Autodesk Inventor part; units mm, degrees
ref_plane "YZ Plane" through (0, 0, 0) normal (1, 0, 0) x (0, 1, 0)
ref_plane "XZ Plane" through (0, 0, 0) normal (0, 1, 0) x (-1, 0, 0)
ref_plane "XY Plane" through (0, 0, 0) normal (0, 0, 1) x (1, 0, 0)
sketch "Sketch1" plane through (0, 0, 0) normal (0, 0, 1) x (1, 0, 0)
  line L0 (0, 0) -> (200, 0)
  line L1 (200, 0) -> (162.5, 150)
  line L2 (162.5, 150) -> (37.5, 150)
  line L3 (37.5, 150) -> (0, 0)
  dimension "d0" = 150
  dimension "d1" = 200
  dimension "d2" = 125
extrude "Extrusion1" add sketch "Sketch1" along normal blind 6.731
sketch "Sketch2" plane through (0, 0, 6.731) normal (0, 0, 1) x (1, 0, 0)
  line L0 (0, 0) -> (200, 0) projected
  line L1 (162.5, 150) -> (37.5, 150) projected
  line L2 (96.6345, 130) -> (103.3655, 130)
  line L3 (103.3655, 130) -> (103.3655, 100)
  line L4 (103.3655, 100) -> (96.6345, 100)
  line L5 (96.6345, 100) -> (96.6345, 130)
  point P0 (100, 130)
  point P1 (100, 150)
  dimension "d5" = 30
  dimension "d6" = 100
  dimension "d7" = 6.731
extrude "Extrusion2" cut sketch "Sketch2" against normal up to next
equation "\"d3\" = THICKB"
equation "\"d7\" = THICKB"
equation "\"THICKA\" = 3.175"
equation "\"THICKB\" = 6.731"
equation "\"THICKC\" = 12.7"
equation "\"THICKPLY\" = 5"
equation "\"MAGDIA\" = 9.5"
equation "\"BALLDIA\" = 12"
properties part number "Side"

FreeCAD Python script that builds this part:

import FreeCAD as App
import Part
import Sketcher

V = App.Vector


def add_polygon(sketch, points):
    """Adds a closed chain of lines whose ends are joined by coincident constraints."""
    first, n = sketch.GeometryCount, len(points)
    for a, b in zip(points, points[1:] + points[:1]):
        sketch.addGeometry(Part.LineSegment(App.Vector(*a, 0), App.Vector(*b, 0)), False)
    for i in range(n):
        sketch.addConstraint(Sketcher.Constraint("Coincident", first + i, 2, first + (i + 1) % n, 1))

doc = App.newDocument("Part")
body = doc.addObject("PartDesign::Body", "Body")

sketch1 = body.newObject("Sketcher::SketchObject", "Sketch")
sketch1.AttachmentSupport = (doc.getObject("XY_Plane"), [""])
sketch1.MapMode = "FlatFace"
add_polygon(sketch1, [(37.5, 150), (0, 0), (200, 0), (162.5, 150)])
sketch1.addConstraint([
    Sketcher.Constraint("Horizontal", 1),
    Sketcher.Constraint("Horizontal", 3),
    Sketcher.Constraint("Coincident", 0, 2, -1, 1),
    Sketcher.Constraint("Equal", 0, 2),
    Sketcher.Constraint("DistanceX", 1, 1, 1, 2, 200.0),
    Sketcher.Constraint("DistanceX", 3, 2, 3, 1, 125.0),
    Sketcher.Constraint("DistanceY", -1, 1, 2, 2, 150.0),
])
pad1 = body.newObject("PartDesign::Pad", "Pad")
pad1.Profile = sketch1
pad1.Length = 6.731

sketch2 = body.newObject("Sketcher::SketchObject", "Sketch001")
sketch2.AttachmentSupport = (doc.getObject("XY_Plane"), [""])
sketch2.MapMode = "FlatFace"
sketch2.AttachmentOffset = App.Placement(V(0, 0, 6.731), App.Rotation())
add_polygon(sketch2, [(103.3655, 130), (96.6345, 130), (96.6345, 100), (103.3655, 100)])
sketch2.addConstraint([
    Sketcher.Constraint("Horizontal", 0),
    Sketcher.Constraint("Vertical", 1),
    Sketcher.Constraint("Horizontal", 2),
    Sketcher.Constraint("Vertical", 3),
    Sketcher.Constraint("DistanceY", 1, 2, 1, 1, 30.0),
    Sketcher.Constraint("DistanceY", -1, 1, 1, 2, 100.0),
    Sketcher.Constraint("DistanceX", 0, 2, 0, 1, 6.731),
    Sketcher.Constraint("DistanceX", -1, 1, 0, 2, 96.6345),
])
pocket1 = body.newObject("PartDesign::Pocket", "Pocket")
pocket1.Profile = sketch2
pocket1.Type = "UpToFirst"

doc.recompute()
